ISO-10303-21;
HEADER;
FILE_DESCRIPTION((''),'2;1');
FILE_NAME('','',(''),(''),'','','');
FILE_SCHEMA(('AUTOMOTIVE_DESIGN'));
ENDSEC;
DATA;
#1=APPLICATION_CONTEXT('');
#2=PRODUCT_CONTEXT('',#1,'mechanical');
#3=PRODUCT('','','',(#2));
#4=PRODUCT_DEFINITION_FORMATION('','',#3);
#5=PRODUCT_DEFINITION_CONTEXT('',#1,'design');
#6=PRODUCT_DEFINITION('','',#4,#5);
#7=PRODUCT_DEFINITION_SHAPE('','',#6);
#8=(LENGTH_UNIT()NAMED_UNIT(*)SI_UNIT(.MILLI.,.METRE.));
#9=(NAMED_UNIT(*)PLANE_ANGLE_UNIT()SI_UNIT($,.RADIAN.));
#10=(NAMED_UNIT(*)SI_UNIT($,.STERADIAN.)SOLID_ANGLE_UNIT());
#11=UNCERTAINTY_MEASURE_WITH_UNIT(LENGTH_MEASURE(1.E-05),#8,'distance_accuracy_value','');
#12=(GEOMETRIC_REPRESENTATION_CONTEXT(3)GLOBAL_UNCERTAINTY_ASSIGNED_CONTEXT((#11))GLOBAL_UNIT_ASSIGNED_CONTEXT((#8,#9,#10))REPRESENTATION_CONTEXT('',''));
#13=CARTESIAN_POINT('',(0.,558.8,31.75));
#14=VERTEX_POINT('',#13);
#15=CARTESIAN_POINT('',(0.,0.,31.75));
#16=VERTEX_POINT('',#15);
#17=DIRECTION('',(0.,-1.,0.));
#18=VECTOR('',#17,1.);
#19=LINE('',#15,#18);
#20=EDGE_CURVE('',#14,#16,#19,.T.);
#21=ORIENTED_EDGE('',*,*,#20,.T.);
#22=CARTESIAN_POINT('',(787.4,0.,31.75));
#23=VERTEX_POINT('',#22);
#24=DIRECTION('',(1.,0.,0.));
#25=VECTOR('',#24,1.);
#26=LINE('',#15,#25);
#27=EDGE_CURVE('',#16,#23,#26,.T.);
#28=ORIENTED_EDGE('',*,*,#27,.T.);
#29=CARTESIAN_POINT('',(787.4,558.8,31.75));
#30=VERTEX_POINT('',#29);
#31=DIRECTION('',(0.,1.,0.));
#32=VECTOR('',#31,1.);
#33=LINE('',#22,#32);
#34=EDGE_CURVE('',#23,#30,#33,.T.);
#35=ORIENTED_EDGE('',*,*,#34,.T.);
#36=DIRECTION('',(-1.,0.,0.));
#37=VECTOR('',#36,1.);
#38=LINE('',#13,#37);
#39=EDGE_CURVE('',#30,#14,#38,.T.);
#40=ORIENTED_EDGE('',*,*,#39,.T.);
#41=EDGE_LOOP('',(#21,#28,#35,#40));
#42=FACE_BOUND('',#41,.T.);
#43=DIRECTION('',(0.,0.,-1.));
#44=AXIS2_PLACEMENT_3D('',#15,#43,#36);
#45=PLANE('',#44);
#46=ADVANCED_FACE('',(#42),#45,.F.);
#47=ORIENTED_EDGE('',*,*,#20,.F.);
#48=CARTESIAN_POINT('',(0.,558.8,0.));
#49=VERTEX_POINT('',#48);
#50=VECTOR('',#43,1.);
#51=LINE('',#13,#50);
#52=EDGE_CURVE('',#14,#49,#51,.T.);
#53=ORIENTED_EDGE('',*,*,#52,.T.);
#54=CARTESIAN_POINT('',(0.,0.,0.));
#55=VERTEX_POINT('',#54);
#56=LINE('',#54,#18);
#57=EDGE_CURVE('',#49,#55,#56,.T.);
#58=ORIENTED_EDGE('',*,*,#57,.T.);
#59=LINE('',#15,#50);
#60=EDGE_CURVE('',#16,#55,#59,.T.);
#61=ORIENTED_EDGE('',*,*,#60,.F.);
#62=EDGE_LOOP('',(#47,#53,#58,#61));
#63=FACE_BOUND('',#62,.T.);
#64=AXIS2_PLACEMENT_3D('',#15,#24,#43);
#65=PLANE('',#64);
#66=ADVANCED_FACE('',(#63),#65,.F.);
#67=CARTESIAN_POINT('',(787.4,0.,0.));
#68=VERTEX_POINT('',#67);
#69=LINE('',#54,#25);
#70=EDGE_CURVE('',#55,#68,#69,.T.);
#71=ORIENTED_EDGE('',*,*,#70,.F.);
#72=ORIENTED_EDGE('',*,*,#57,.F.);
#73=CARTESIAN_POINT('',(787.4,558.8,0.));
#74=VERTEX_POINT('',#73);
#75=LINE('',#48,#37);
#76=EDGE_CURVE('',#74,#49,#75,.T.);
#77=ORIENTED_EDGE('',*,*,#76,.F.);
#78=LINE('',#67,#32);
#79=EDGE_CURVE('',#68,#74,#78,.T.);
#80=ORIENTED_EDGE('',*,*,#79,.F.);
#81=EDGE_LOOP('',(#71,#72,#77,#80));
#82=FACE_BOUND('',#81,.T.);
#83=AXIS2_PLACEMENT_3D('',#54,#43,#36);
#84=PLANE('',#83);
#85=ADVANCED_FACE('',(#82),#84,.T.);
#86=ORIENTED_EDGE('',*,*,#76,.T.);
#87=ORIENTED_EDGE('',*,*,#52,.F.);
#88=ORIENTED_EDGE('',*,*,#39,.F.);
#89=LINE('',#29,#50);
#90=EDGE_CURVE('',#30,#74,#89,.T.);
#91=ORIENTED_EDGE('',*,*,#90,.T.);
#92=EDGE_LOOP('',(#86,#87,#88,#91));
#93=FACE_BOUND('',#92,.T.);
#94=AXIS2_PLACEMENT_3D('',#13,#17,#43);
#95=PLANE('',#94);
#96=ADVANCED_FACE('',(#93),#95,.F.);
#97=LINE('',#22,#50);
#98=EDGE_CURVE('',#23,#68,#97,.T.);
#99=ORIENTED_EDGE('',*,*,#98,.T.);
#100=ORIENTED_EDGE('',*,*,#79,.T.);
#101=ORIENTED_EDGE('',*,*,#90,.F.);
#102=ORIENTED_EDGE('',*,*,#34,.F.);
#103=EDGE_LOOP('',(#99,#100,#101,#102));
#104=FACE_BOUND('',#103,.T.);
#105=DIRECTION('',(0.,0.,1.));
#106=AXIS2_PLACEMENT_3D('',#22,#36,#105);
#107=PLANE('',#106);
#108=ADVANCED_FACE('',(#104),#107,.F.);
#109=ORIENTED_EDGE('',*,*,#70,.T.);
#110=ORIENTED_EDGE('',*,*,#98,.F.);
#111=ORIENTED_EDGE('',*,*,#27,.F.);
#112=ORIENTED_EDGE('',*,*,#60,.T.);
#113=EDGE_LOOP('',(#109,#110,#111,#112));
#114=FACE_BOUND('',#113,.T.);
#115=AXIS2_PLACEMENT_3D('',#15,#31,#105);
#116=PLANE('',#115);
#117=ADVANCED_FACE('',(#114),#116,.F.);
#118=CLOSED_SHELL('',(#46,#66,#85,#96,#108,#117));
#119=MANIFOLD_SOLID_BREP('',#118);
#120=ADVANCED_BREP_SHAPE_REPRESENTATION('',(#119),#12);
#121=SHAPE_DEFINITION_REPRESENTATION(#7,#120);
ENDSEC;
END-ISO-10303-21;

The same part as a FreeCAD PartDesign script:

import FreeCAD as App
import Part
import Sketcher
from FreeCAD import Vector
Q = App.Units.Quantity

doc = App.newDocument("Part")
body = doc.addObject("PartDesign::Body", "Body")

# Sketch on XY plane
sketch1 = body.newObject("Sketcher::SketchObject", "Sketch")
sketch1.AttachmentSupport = (doc.getObject("XY_Plane"), [""])
sketch1.MapMode = "FlatFace"
sketch1.addGeometry([
    Part.LineSegment(Vector(0, 559, 0), Vector(0, 0, 0)),
    Part.LineSegment(Vector(0, 0, 0), Vector(787, 0, 0)),
    Part.LineSegment(Vector(787, 0, 0), Vector(787, 559, 0)),
    Part.LineSegment(Vector(787, 559, 0), Vector(0, 559, 0)),
], False)
sketch1.addConstraint([
    Sketcher.Constraint("Coincident", 0, 2, 1, 1),
    Sketcher.Constraint("Coincident", 1, 2, 2, 1),
    Sketcher.Constraint("Coincident", 2, 2, 3, 1),
    Sketcher.Constraint("Coincident", 3, 2, 0, 1),
    Sketcher.Constraint("Vertical", 0),
    Sketcher.Constraint("Horizontal", 1),
    Sketcher.Constraint("Vertical", 2),
    Sketcher.Constraint("Horizontal", 3),
    Sketcher.Constraint("Coincident", 0, 2, -1, 1),
    Sketcher.Constraint("DistanceX", 1, 1, 1, 2, Q("31 in")),
    Sketcher.Constraint("DistanceY", 0, 2, 0, 1, Q("22 in")),
])
pad1 = body.newObject("PartDesign::Pad", "Pad")
pad1.Profile = sketch1
pad1.Length = Q("1.25 in")

doc.recompute()
